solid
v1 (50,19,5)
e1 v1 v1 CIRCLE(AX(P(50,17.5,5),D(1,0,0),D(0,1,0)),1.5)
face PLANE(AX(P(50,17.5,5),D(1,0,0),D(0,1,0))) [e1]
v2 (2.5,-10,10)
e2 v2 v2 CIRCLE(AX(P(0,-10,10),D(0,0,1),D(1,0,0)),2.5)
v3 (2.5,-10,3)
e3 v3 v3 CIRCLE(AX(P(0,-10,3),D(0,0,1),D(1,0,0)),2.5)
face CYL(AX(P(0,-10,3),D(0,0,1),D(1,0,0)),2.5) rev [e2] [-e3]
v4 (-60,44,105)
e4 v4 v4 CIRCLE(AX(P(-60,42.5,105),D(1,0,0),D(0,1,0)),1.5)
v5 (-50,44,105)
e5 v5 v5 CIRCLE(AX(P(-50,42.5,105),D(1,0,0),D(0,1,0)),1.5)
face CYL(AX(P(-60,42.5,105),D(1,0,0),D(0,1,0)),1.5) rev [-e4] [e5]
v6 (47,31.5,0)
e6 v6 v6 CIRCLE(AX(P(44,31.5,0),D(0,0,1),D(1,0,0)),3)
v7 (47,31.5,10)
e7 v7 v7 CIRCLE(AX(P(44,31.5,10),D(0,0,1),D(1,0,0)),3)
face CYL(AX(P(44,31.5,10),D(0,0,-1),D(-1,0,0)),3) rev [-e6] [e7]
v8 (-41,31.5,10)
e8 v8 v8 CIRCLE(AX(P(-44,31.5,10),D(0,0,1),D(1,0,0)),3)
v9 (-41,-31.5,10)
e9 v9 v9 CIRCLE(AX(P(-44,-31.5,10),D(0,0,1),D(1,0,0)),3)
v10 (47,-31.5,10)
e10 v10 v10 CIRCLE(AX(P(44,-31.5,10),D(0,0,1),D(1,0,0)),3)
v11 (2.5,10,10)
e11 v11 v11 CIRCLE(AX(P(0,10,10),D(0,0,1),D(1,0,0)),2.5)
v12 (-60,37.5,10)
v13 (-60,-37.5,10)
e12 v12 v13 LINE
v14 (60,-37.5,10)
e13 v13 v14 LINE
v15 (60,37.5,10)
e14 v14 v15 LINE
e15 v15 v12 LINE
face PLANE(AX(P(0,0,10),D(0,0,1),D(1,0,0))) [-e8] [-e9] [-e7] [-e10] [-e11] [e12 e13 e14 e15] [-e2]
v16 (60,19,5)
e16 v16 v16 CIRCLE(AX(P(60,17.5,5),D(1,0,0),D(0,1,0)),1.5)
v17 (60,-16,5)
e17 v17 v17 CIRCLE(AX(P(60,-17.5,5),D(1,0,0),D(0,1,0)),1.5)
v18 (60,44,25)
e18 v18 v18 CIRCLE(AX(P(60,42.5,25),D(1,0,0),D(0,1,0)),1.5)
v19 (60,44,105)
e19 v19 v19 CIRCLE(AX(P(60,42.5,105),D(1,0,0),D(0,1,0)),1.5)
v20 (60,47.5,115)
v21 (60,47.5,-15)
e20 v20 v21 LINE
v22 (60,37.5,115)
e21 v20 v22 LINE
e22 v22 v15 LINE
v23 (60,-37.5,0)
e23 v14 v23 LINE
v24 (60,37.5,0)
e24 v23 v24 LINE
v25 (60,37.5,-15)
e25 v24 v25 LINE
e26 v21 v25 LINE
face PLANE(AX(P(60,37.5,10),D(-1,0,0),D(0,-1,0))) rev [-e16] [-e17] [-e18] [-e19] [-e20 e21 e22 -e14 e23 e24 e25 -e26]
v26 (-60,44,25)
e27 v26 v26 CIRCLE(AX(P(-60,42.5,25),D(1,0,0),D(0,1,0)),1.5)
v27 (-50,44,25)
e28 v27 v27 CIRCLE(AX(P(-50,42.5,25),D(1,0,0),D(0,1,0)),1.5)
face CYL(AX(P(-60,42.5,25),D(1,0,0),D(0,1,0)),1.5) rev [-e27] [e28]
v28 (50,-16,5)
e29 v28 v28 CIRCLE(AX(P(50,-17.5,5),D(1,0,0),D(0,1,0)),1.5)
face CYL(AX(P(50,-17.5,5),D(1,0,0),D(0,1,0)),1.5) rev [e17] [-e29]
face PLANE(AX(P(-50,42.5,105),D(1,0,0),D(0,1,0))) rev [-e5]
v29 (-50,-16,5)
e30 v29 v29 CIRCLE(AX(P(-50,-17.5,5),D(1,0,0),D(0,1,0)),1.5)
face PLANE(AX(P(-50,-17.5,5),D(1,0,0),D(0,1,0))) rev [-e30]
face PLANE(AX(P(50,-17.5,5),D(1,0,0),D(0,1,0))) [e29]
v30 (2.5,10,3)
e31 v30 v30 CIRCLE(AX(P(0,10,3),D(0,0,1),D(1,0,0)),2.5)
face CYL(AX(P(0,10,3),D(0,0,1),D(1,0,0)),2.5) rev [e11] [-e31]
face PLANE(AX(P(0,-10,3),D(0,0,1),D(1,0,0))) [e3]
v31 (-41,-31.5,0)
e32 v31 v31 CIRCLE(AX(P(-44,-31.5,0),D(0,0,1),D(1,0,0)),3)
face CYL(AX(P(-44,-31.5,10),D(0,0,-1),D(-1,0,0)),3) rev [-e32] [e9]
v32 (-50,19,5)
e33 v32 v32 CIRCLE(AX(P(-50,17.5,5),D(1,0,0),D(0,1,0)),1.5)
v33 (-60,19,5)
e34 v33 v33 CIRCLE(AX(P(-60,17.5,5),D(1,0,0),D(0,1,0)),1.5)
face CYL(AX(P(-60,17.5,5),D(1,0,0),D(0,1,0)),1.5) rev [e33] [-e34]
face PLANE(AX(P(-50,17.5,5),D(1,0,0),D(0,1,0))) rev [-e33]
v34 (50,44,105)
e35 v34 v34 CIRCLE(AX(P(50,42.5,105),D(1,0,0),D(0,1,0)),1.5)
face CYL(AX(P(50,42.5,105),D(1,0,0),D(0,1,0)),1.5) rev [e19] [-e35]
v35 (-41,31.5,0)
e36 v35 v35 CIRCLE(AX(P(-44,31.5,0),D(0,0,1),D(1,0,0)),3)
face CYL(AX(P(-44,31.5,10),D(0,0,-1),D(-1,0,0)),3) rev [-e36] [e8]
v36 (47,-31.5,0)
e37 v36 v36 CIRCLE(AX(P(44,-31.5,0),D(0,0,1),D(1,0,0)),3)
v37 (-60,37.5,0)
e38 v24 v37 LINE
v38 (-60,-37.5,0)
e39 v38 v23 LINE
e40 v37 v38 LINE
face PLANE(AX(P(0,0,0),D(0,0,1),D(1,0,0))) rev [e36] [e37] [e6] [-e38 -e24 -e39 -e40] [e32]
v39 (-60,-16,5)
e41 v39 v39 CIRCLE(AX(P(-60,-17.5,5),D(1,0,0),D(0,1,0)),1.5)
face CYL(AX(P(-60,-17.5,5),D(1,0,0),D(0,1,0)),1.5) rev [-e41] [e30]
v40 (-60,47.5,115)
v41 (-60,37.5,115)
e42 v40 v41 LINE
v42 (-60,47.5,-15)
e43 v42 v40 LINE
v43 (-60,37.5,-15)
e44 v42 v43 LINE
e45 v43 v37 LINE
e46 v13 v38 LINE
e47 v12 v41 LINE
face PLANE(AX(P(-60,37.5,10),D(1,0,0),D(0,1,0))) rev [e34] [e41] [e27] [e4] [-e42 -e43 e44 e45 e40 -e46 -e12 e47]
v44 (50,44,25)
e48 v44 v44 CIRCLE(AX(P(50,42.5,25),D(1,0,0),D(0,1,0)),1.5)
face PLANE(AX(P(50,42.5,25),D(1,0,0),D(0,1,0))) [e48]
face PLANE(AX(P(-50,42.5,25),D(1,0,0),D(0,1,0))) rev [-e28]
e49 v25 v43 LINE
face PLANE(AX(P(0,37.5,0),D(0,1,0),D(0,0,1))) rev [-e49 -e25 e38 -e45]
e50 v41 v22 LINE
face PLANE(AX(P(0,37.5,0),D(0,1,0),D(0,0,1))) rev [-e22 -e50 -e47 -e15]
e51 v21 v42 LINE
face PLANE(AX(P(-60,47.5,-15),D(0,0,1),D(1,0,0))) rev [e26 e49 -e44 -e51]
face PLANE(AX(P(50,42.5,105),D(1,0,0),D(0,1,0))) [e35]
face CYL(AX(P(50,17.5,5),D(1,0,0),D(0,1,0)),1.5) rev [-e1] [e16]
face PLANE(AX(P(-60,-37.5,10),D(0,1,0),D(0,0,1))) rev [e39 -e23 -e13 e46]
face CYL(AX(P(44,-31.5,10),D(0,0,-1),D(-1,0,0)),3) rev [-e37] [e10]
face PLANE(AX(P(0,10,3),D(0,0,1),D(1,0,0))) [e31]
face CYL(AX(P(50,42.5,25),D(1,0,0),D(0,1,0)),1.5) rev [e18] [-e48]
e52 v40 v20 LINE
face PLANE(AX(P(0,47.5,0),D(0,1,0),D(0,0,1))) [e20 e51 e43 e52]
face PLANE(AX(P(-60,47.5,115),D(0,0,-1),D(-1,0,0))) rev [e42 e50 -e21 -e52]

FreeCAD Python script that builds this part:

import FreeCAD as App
import Part
import Sketcher

V = App.Vector

doc = App.newDocument("Part")
body = doc.addObject("PartDesign::Body", "Body")

# Sketch on XY plane
sketch1 = body.newObject("Sketcher::SketchObject", "Sketch")
sketch1.AttachmentSupport = (doc.getObject("XY_Plane"), [""])
sketch1.MapMode = "FlatFace"
sketch1.addGeometry([
    Part.LineSegment(V(-60, 37.5, 0), V(-60, -37.5, 0)),  # 0
    Part.LineSegment(V(-60, -37.5, 0), V(60, -37.5, 0)),  # 1
    Part.LineSegment(V(60, -37.5, 0), V(60, 37.5, 0)),  # 2
    Part.LineSegment(V(60, 37.5, 0), V(-60, 37.5, 0)),  # 3
    Part.Circle(V(-44, -31.5, 0), V(0, 0, 1), 3),  # 4
    Part.Circle(V(44, -31.5, 0), V(0, 0, 1), 3),  # 5
    Part.Circle(V(-44, 31.5, 0), V(0, 0, 1), 3),  # 6
    Part.Circle(V(44, 31.5, 0), V(0, 0, 1), 3),  # 7
], False)
sketch1.addConstraint([
    Sketcher.Constraint("Coincident", 0, 2, 1, 1),
    Sketcher.Constraint("Coincident", 1, 2, 2, 1),
    Sketcher.Constraint("Coincident", 2, 2, 3, 1),
    Sketcher.Constraint("Coincident", 3, 2, 0, 1),
    Sketcher.Constraint("Vertical", 0),
    Sketcher.Constraint("Horizontal", 1),
    Sketcher.Constraint("Vertical", 2),
    Sketcher.Constraint("Horizontal", 3),
    Sketcher.Constraint("Equal", 4, 5),
    Sketcher.Constraint("Equal", 5, 6),
    Sketcher.Constraint("Equal", 6, 7),
    Sketcher.Constraint("Symmetric", 5, 3, 6, 3, -1, 1),
    Sketcher.Constraint("Symmetric", 4, 3, 7, 3, -1, 1),
    Sketcher.Constraint("Symmetric", 0, 2, 2, 2, -1, 1),
    Sketcher.Constraint("Symmetric", 4, 3, 5, 3, -2),
    Sketcher.Constraint("Diameter", 4, 6.0),
    Sketcher.Constraint("DistanceX", 1, 1, 1, 2, 120.0),
    Sketcher.Constraint("DistanceY", 0, 2, 0, 1, 75.0),
    Sketcher.Constraint("DistanceX", 4, 3, -1, 1, 44.0),
    Sketcher.Constraint("DistanceY", 4, 3, 6, 3, 63.0),
])
pad1 = body.newObject("PartDesign::Pad", "Pad")
pad1.Profile = sketch1
pad1.Length = 10

# Sketch on XY plane
sketch2 = body.newObject("Sketcher::SketchObject", "Sketch001")
sketch2.AttachmentSupport = (doc.getObject("XY_Plane"), [""])
sketch2.MapMode = "FlatFace"
sketch2.AttachmentOffset = App.Placement(V(0, 0, 10), App.Rotation())
sketch2.addGeometry([
    Part.Circle(V(0, 10, 0), V(0, 0, 1), 2.5),
    Part.Circle(V(0, -10, 0), V(0, 0, 1), 2.5),
], False)
sketch2.addConstraint([
    Sketcher.Constraint("Equal", 0, 1),
    Sketcher.Constraint("Symmetric", 0, 3, 1, 3, -1, 1),
    Sketcher.Constraint("PointOnObject", 0, 3, -2),
    Sketcher.Constraint("Diameter", 0, 5.0),
    Sketcher.Constraint("DistanceY", -1, 1, 0, 3, 10.0),
])
pocket1 = body.newObject("PartDesign::Pocket", "Pocket")
pocket1.Profile = sketch2
pocket1.Length = 7

# Sketch on YZ plane
sketch3 = body.newObject("Sketcher::SketchObject", "Sketch002")
sketch3.AttachmentSupport = (doc.getObject("YZ_Plane"), [""])
sketch3.MapMode = "FlatFace"
sketch3.AttachmentOffset = App.Placement(V(0, 0, 60), App.Rotation())
sketch3.addGeometry([
    Part.Circle(V(17.5, 5, 0), V(0, 0, 1), 1.5),
    Part.Circle(V(-17.5, 5, 0), V(0, 0, 1), 1.5),
], False)
sketch3.addConstraint([
    Sketcher.Constraint("Equal", 0, 1),
    Sketcher.Constraint("Symmetric", 0, 3, 1, 3, -2),
    Sketcher.Constraint("Diameter", 0, 3.0),
    Sketcher.Constraint("DistanceY", -1, 1, 0, 3, 5.0),
    Sketcher.Constraint("DistanceX", 1, 3, 0, 3, 35.0),
])
pocket2 = body.newObject("PartDesign::Pocket", "Pocket001")
pocket2.Profile = sketch3
pocket2.Length = 10
doc.recompute()

linearpattern = body.newObject("PartDesign::LinearPattern", "LinearPattern")
linearpattern.Originals = [pocket2]
linearpattern.Direction = (doc.getObject("X_Axis"), [""])
linearpattern.Mode = "offset"
linearpattern.Offset = 110
linearpattern.Occurrences = 2
linearpattern.Reversed = True
body.Tip = linearpattern

# Sketch on XZ plane
sketch4 = body.newObject("Sketcher::SketchObject", "Sketch003")
sketch4.AttachmentSupport = (doc.getObject("XZ_Plane"), [""])
sketch4.MapMode = "FlatFace"
sketch4.AttachmentOffset = App.Placement(V(0, 0, -37.5), App.Rotation())
sketch4.addGeometry([
    Part.LineSegment(V(-60, -15, 0), V(-60, 115, 0)),
    Part.LineSegment(V(-60, 115, 0), V(60, 115, 0)),
    Part.LineSegment(V(60, 115, 0), V(60, -15, 0)),
    Part.LineSegment(V(60, -15, 0), V(-60, -15, 0)),
], False)
sketch4.addConstraint([
    Sketcher.Constraint("Coincident", 0, 2, 1, 1),
    Sketcher.Constraint("Coincident", 1, 2, 2, 1),
    Sketcher.Constraint("Coincident", 2, 2, 3, 1),
    Sketcher.Constraint("Coincident", 3, 2, 0, 1),
    Sketcher.Constraint("Vertical", 0),
    Sketcher.Constraint("Horizontal", 1),
    Sketcher.Constraint("Vertical", 2),
    Sketcher.Constraint("Horizontal", 3),
    Sketcher.Constraint("DistanceX", 1, 1, 1, 2, 120.0),
    Sketcher.Constraint("DistanceY", 0, 1, 0, 2, 130.0),
    Sketcher.Constraint("DistanceX", 0, 2, -1, 1, 60.0),
    Sketcher.Constraint("DistanceY", -1, 1, 0, 2, 115.0),
])
pad2 = body.newObject("PartDesign::Pad", "Pad001")
pad2.Profile = sketch4
pad2.Length = 10
pad2.Reversed = True

# Sketch on YZ plane
sketch5 = body.newObject("Sketcher::SketchObject", "Sketch004")
sketch5.AttachmentSupport = (doc.getObject("YZ_Plane"), [""])
sketch5.MapMode = "FlatFace"
sketch5.AttachmentOffset = App.Placement(V(0, 0, 60), App.Rotation())
sketch5.addGeometry([
    Part.Circle(V(42.5, 105, 0), V(0, 0, 1), 1.5),
    Part.Circle(V(42.5, 25, 0), V(0, 0, 1), 1.5),
], False)
sketch5.addConstraint([
    Sketcher.Constraint("Equal", 0, 1),
    Sketcher.Constraint("Vertical", 0, 3, 1, 3),
    Sketcher.Constraint("Diameter", 0, 3.0),
    Sketcher.Constraint("DistanceY", -1, 1, 0, 3, 105.0),
    Sketcher.Constraint("DistanceY", -1, 1, 1, 3, 25.0),
    Sketcher.Constraint("DistanceX", -1, 1, 0, 3, 42.5),
])
pocket3 = body.newObject("PartDesign::Pocket", "Pocket002")
pocket3.Profile = sketch5
pocket3.Length = 10
doc.recompute()

linearpattern2 = body.newObject("PartDesign::LinearPattern", "LinearPattern001")
linearpattern2.Originals = [pocket3]
linearpattern2.Direction = (doc.getObject("X_Axis"), [""])
linearpattern2.Mode = "offset"
linearpattern2.Offset = 110
linearpattern2.Occurrences = 2
linearpattern2.Reversed = True
body.Tip = linearpattern2

doc.recompute()
